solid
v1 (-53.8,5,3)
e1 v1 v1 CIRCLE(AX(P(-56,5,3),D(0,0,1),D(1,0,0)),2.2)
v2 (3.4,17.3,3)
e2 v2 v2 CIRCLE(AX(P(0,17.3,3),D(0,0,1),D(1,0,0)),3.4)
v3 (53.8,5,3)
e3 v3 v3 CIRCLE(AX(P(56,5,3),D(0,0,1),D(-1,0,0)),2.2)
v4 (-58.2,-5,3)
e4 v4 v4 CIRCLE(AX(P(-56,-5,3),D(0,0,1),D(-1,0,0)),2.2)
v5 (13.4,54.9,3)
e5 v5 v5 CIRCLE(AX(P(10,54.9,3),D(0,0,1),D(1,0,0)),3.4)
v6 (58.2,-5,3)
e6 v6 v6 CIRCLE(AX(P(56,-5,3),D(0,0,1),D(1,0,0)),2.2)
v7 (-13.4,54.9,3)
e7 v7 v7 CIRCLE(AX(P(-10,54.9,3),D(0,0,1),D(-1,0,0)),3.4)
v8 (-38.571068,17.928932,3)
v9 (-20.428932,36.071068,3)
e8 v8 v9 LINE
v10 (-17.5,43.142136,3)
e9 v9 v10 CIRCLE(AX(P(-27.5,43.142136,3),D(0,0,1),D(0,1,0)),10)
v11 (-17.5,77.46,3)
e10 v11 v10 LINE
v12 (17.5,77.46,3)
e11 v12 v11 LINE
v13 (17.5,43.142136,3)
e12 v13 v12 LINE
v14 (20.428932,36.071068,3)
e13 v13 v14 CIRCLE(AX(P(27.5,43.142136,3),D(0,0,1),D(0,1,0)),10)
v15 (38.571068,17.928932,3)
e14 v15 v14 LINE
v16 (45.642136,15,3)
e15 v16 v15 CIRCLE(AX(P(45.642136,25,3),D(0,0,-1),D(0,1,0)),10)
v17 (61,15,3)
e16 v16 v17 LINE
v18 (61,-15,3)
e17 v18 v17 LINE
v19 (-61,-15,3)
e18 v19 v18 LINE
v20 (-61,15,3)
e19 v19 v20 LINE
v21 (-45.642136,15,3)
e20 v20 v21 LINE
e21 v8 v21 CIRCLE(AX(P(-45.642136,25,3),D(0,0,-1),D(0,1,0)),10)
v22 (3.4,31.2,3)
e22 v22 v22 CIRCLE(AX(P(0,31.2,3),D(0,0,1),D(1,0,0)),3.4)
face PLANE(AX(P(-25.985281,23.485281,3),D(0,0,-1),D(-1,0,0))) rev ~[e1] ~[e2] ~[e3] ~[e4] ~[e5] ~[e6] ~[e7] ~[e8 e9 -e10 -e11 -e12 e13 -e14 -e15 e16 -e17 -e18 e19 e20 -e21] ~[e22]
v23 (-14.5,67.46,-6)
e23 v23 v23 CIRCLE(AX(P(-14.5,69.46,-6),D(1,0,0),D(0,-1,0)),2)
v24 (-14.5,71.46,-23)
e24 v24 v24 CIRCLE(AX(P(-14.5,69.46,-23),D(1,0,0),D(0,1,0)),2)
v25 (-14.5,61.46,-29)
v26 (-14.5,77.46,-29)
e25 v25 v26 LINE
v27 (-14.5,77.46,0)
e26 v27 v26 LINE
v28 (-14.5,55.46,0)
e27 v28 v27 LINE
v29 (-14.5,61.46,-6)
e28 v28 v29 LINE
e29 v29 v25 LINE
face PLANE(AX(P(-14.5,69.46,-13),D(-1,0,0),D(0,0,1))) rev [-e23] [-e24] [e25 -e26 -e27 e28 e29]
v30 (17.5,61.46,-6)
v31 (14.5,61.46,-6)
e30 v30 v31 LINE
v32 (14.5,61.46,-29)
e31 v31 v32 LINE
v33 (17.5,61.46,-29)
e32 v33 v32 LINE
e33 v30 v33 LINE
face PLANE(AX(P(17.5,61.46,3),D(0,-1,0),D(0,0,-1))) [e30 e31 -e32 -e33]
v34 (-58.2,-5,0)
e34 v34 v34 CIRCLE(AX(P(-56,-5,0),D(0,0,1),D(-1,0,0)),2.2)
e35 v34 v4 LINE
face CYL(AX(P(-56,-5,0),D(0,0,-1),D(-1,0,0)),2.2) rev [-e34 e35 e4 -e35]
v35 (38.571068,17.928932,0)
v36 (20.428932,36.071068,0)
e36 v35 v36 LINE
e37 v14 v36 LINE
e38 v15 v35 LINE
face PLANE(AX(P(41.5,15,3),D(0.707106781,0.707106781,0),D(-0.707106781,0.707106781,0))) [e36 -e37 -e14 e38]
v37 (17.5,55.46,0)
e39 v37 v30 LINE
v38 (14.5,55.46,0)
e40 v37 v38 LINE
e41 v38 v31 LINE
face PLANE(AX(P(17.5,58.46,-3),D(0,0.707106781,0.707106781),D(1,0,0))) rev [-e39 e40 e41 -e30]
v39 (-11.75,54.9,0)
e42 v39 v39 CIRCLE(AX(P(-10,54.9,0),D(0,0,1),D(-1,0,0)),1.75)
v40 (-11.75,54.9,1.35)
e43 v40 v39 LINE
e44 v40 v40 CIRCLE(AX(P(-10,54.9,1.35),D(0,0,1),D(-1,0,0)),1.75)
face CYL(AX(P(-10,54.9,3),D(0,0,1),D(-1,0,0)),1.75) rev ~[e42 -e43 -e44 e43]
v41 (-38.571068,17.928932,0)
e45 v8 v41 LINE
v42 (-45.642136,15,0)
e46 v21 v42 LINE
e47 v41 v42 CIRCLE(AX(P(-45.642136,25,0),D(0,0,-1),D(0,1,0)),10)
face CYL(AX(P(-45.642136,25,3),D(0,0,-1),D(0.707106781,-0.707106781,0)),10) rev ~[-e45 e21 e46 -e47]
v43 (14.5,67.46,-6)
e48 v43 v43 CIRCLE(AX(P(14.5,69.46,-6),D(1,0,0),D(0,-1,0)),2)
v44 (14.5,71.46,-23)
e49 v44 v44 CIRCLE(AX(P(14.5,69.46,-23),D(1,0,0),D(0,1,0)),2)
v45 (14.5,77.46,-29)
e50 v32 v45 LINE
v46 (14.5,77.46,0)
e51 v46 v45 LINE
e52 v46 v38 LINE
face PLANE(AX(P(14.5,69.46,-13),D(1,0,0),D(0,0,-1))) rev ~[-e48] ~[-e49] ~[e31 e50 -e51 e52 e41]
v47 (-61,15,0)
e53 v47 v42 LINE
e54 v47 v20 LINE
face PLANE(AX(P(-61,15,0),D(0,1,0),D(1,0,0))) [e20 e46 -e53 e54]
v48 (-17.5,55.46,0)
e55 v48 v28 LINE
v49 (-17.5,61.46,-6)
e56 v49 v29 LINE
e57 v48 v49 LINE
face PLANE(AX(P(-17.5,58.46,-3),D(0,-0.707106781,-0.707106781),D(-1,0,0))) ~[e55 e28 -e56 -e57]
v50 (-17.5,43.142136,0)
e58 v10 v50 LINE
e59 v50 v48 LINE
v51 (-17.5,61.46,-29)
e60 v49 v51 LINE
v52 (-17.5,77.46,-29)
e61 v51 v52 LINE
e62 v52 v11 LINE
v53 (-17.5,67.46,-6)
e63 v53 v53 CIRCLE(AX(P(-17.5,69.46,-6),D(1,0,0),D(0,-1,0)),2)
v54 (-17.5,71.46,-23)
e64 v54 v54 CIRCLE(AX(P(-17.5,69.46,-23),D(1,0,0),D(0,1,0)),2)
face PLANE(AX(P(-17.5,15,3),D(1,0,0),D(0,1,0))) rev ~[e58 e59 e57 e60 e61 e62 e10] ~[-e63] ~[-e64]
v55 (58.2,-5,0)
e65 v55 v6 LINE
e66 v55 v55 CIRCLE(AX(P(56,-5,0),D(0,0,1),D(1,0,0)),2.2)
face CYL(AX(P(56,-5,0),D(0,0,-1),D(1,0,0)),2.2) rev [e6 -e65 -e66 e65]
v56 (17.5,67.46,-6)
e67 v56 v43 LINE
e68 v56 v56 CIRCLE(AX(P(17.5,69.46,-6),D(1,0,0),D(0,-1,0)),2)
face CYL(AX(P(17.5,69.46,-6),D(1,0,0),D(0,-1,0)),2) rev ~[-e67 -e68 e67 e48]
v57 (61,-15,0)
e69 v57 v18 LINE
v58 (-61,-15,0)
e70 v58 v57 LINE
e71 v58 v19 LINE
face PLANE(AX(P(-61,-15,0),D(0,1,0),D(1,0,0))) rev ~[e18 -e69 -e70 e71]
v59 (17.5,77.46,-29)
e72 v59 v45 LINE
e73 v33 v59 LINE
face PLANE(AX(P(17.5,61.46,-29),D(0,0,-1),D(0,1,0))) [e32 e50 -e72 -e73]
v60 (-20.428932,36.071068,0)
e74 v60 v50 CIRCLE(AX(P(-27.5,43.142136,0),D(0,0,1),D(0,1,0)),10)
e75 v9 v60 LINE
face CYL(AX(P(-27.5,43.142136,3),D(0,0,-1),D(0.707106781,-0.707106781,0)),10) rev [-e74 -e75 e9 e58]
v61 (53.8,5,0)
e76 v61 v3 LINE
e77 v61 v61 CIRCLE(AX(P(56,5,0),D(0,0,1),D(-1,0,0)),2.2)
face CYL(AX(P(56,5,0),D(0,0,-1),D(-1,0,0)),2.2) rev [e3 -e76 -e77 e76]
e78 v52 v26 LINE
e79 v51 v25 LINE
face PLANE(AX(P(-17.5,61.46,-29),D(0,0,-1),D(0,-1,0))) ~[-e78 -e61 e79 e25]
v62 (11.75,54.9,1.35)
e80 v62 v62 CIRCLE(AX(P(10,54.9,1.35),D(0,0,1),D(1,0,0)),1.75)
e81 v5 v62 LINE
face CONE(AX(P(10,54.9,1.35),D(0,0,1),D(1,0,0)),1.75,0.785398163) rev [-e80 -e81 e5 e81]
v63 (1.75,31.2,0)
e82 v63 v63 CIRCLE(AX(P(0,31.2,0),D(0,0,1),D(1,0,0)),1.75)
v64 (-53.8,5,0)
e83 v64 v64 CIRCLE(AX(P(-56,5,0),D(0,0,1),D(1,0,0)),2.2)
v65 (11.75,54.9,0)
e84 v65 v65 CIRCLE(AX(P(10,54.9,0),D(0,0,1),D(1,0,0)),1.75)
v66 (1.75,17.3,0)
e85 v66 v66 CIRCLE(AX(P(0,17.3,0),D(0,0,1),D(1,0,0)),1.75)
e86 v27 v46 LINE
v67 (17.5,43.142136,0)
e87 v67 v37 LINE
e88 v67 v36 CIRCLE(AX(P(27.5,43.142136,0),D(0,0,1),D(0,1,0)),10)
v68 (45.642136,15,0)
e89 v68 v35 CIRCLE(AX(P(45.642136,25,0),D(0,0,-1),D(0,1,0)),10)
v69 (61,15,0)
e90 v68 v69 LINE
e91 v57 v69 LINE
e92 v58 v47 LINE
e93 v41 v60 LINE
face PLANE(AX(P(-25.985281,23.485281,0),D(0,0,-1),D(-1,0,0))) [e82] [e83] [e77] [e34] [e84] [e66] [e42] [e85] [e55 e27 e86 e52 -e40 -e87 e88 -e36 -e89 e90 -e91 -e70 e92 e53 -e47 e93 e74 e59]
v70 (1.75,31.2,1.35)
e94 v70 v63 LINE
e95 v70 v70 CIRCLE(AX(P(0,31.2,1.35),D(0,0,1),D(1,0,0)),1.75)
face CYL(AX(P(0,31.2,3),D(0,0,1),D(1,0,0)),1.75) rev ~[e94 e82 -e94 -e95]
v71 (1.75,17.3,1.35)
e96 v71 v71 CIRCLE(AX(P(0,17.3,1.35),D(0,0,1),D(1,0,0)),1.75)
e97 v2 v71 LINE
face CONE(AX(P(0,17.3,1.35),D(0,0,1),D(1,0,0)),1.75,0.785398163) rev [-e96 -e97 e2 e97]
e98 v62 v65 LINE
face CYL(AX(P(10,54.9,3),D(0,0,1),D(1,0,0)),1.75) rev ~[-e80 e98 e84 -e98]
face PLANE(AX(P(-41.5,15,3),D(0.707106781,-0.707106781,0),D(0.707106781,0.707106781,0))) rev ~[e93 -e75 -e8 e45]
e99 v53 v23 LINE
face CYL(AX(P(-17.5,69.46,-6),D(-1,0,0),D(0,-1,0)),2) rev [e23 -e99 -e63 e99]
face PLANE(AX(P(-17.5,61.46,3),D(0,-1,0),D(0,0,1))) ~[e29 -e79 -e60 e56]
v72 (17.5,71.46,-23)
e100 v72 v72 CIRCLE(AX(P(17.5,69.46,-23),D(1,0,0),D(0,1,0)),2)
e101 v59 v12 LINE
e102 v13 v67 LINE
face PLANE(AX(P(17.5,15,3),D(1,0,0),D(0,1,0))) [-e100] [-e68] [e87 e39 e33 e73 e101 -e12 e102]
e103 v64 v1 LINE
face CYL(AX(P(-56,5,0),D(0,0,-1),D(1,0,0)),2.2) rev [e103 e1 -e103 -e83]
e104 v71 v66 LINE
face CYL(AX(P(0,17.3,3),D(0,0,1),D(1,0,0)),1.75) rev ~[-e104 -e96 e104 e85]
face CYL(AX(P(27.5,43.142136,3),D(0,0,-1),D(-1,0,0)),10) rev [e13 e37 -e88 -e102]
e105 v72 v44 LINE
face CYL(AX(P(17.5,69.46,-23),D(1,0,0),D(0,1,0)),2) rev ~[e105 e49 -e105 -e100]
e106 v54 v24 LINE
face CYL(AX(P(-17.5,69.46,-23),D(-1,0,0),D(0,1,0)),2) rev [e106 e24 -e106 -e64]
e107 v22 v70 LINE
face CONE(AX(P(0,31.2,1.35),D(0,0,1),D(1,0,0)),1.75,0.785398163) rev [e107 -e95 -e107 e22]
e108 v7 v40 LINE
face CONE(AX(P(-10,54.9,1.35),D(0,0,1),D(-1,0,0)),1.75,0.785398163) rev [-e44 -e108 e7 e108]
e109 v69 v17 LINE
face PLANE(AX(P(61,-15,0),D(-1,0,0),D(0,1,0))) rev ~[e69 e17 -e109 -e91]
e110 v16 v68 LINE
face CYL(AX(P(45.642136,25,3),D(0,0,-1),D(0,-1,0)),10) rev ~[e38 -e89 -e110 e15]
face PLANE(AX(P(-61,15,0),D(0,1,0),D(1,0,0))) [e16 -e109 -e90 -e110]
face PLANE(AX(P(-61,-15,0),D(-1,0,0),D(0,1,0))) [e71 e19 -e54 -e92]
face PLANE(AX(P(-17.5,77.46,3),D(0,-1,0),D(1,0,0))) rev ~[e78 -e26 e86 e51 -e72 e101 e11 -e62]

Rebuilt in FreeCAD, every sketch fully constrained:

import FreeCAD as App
import Part
import Sketcher

V = App.Vector


def edges_at(feature, points):
    """Names of the edges that pass closest to the given points."""
    edges = feature.Shape.Edges
    near = lambda p: min(range(len(edges)), key=lambda i: edges[i].distToShape(Part.Vertex(*p))[0])
    return sorted({f"Edge{near(p) + 1}" for p in points})

doc = App.newDocument("Part")
params = doc.addObject("Spreadsheet::Sheet", "Params")
for row, (alias, value) in enumerate([
    ("sketch1_diameter", "4.4 mm"),
    ("sketch1_width", "122 mm"),
    ("sketch1_height", "30 mm"),
    ("pad1_length", "3 mm"),
    ("sketch2_diameter", "3.5 mm"),
    ("sketch2_width", "35 mm"),
    ("sketch2_height", "62.46 mm"),
    ("pad2_length", "3 mm"),
    ("sketch3_width", "24 mm"),
    ("pad3_length", "3 mm"),
    ("fillet_radius", "10 mm"),
    ("chamfer_size", "1.65 mm"),
    ("sketch4_diameter", "4 mm"),
    ("sketch4_width", "16 mm"),
    ("sketch4_height", "32 mm"),
    ("pad4_length", "3 mm"),
    ("chamfer2_size", "6 mm"),
], start=1):
    params.set(f"A{row}", alias)
    params.set(f"B{row}", "=" + value)
    params.setAlias(f"B{row}", alias)

body = doc.addObject("PartDesign::Body", "Body")

sketch1 = body.newObject("Sketcher::SketchObject", "Sketch")
sketch1.AttachmentSupport = (doc.getObject("XY_Plane"), [""])
sketch1.MapMode = "FlatFace"
sketch1.addGeometry([
    Part.LineSegment(V(-61, 15, 0), V(-61, -15, 0)),
    Part.LineSegment(V(-61, -15, 0), V(61, -15, 0)),
    Part.LineSegment(V(61, -15, 0), V(61, 15, 0)),
    Part.LineSegment(V(61, 15, 0), V(-61, 15, 0)),
    Part.Circle(V(-56, -5, 0), V(0, 0, 1), 2.2),
    Part.Circle(V(56, -5, 0), V(0, 0, 1), 2.2),
    Part.Circle(V(-56, 5, 0), V(0, 0, 1), 2.2),
    Part.Circle(V(56, 5, 0), V(0, 0, 1), 2.2),
], False)
sketch1.addConstraint([
    Sketcher.Constraint("Coincident", 0, 2, 1, 1),
    Sketcher.Constraint("Coincident", 1, 2, 2, 1),
    Sketcher.Constraint("Coincident", 2, 2, 3, 1),
    Sketcher.Constraint("Coincident", 3, 2, 0, 1),
    Sketcher.Constraint("Vertical", 0),
    Sketcher.Constraint("Horizontal", 1),
    Sketcher.Constraint("Vertical", 2),
    Sketcher.Constraint("Horizontal", 3),
    Sketcher.Constraint("Equal", 4, 5),
    Sketcher.Constraint("Equal", 5, 6),
    Sketcher.Constraint("Equal", 6, 7),
    Sketcher.Constraint("Symmetric", 5, 3, 6, 3, -1, 1),
    Sketcher.Constraint("Symmetric", 4, 3, 7, 3, -1, 1),
    Sketcher.Constraint("Symmetric", 0, 2, 2, 2, -1, 1),
    Sketcher.Constraint("Symmetric", 4, 3, 5, 3, -2),
    Sketcher.Constraint("Diameter", 4, 4.4),
    Sketcher.Constraint("DistanceX", 1, 1, 1, 2, 122.0),
    Sketcher.Constraint("DistanceY", 0, 2, 0, 1, 30.0),
    Sketcher.Constraint("DistanceX", 4, 3, -1, 1, 56.0),
    Sketcher.Constraint("DistanceY", 4, 3, -1, 1, 5.0),
])
sketch1.setExpression("Constraints[15]", "Params.sketch1_diameter")
sketch1.setExpression("Constraints[16]", "Params.sketch1_width")
sketch1.setExpression("Constraints[17]", "Params.sketch1_height")
pad1 = body.newObject("PartDesign::Pad", "Pad")
pad1.Profile = sketch1
pad1.setExpression("Length", "Params.pad1_length")

sketch2 = body.newObject("Sketcher::SketchObject", "Sketch001")
sketch2.AttachmentSupport = (doc.getObject("XY_Plane"), [""])
sketch2.MapMode = "FlatFace"
sketch2.AttachmentOffset = App.Placement(V(0, 0, 3), App.Rotation())
sketch2.addGeometry([
    Part.LineSegment(V(-17.5, 77.5, 0), V(-17.5, 15, 0)),
    Part.LineSegment(V(-17.5, 15, 0), V(17.5, 15, 0)),
    Part.LineSegment(V(17.5, 15, 0), V(17.5, 77.5, 0)),
    Part.LineSegment(V(17.5, 77.5, 0), V(-17.5, 77.5, 0)),
    Part.Circle(V(0, 17.3, 0), V(0, 0, 1), 1.8),
    Part.Circle(V(0, 31.2, 0), V(0, 0, 1), 1.8),
    Part.Circle(V(-10, 54.9, 0), V(0, 0, 1), 1.8),
    Part.Circle(V(10, 54.9, 0), V(0, 0, 1), 1.8),
], False)
sketch2.addConstraint([
    Sketcher.Constraint("Coincident", 0, 2, 1, 1),
    Sketcher.Constraint("Coincident", 1, 2, 2, 1),
    Sketcher.Constraint("Coincident", 2, 2, 3, 1),
    Sketcher.Constraint("Coincident", 3, 2, 0, 1),
    Sketcher.Constraint("Vertical", 0),
    Sketcher.Constraint("Horizontal", 1),
    Sketcher.Constraint("Vertical", 2),
    Sketcher.Constraint("Horizontal", 3),
    Sketcher.Constraint("Equal", 4, 5),
    Sketcher.Constraint("Equal", 5, 6),
    Sketcher.Constraint("Equal", 6, 7),
    Sketcher.Constraint("Symmetric", 6, 3, 7, 3, -2),
    Sketcher.Constraint("PointOnObject", 4, 3, -2),
    Sketcher.Constraint("PointOnObject", 5, 3, -2),
    Sketcher.Constraint("Diameter", 4, 3.5),
    Sketcher.Constraint("DistanceX", 1, 1, 1, 2, 35.0),
    Sketcher.Constraint("DistanceX", 6, 3, -1, 1, 10.0),
    Sketcher.Constraint("DistanceY", -1, 1, 0, 2, 15.0),
    Sketcher.Constraint("DistanceY", 0, 2, 0, 1, 62.46),
    Sketcher.Constraint("DistanceY", -1, 1, 4, 3, 17.3),
    Sketcher.Constraint("DistanceY", -1, 1, 5, 3, 31.2),
    Sketcher.Constraint("DistanceY", -1, 1, 6, 3, 54.9),
    Sketcher.Constraint("DistanceX", 0, 2, -1, 1, 17.5),
])
sketch2.setExpression("Constraints[14]", "Params.sketch2_diameter")
sketch2.setExpression("Constraints[15]", "Params.sketch2_width")
sketch2.setExpression("Constraints[18]", "Params.sketch2_height")
pad2 = body.newObject("PartDesign::Pad", "Pad001")
pad2.Profile = sketch2
pad2.setExpression("Length", "Params.pad2_length")
pad2.Reversed = True

sketch3 = body.newObject("Sketcher::SketchObject", "Sketch002")
sketch3.AttachmentSupport = (doc.getObject("XY_Plane"), [""])
sketch3.MapMode = "FlatFace"
sketch3.AttachmentOffset = App.Placement(V(0, 0, 3), App.Rotation())
sketch3.addGeometry([
    Part.LineSegment(V(-18, 39, 0), V(-42, 15, 0)),
    Part.LineSegment(V(-42, 15, 0), V(-18, 15, 0)),
    Part.LineSegment(V(-18, 15, 0), V(-18, 39, 0)),
    Part.LineSegment(V(18, 39, 0), V(18, 15, 0)),
    Part.LineSegment(V(18, 15, 0), V(42, 15, 0)),
    Part.LineSegment(V(42, 15, 0), V(18, 39, 0)),
], False)
sketch3.addConstraint([
    Sketcher.Constraint("Coincident", 0, 2, 1, 1),
    Sketcher.Constraint("Coincident", 1, 2, 2, 1),
    Sketcher.Constraint("Coincident", 2, 2, 0, 1),
    Sketcher.Constraint("Coincident", 3, 2, 4, 1),
    Sketcher.Constraint("Coincident", 4, 2, 5, 1),
    Sketcher.Constraint("Coincident", 5, 2, 3, 1),
    Sketcher.Constraint("Horizontal", 1),
    Sketcher.Constraint("Vertical", 2),
    Sketcher.Constraint("Vertical", 3),
    Sketcher.Constraint("Horizontal", 4),
    Sketcher.Constraint("Symmetric", 1, 2, 3, 2, -2),
    Sketcher.Constraint("Perpendicular", 0, 5),
    Sketcher.Constraint("Horizontal", 2, 2, 5, 2),
    Sketcher.Constraint("Equal", 1, 4),
    Sketcher.Constraint("DistanceX", 1, 1, 1, 2, 24.0),
    Sketcher.Constraint("DistanceY", -1, 1, 0, 2, 15.0),
    Sketcher.Constraint("DistanceX", 1, 2, 3, 2, 35.0),
])
sketch3.setExpression("Constraints[14]", "Params.sketch3_width")
pad3 = body.newObject("PartDesign::Pad", "Pad002")
pad3.Profile = sketch3
pad3.setExpression("Length", "Params.pad3_length")
pad3.Reversed = True
doc.recompute()

fillet = body.newObject("PartDesign::Fillet", "Fillet")
fillet.Base = (pad3, edges_at(pad3, [
    (-41.5, 15, 1.5),
    (-17.5, 39, 1.5),
    (17.5, 39, 1.5),
    (41.5, 15, 1.5),
]))
fillet.setExpression("Radius", "Params.fillet_radius")
doc.recompute()

chamfer = body.newObject("PartDesign::Chamfer", "Chamfer")
chamfer.Base = (fillet, edges_at(fillet, [
    (-1.75, 17.3, 3),
    (8.25, 54.9, 3),
    (-1.75, 31.2, 3),
    (-8.25, 54.9, 3),
]))
chamfer.setExpression("Size", "Params.chamfer_size")

sketch4 = body.newObject("Sketcher::SketchObject", "Sketch003")
sketch4.AttachmentSupport = (doc.getObject("YZ_Plane"), [""])
sketch4.MapMode = "FlatFace"
sketch4.AttachmentOffset = App.Placement(V(0, 0, 17.5), App.Rotation())
sketch4.addGeometry([
    Part.LineSegment(V(77.5, 3, 0), V(61.5, 3, 0)),
    Part.LineSegment(V(61.5, 3, 0), V(61.5, -29, 0)),
    Part.LineSegment(V(61.5, -29, 0), V(77.5, -29, 0)),
    Part.LineSegment(V(77.5, -29, 0), V(77.5, 3, 0)),
    Part.Circle(V(69.5, -6, 0), V(0, 0, 1), 2),
    Part.Circle(V(69.5, -23, 0), V(0, 0, 1), 2),
], False)
sketch4.addConstraint([
    Sketcher.Constraint("Coincident", 0, 2, 1, 1),
    Sketcher.Constraint("Coincident", 1, 2, 2, 1),
    Sketcher.Constraint("Coincident", 2, 2, 3, 1),
    Sketcher.Constraint("Coincident", 3, 2, 0, 1),
    Sketcher.Constraint("Horizontal", 0),
    Sketcher.Constraint("Vertical", 1),
    Sketcher.Constraint("Horizontal", 2),
    Sketcher.Constraint("Vertical", 3),
    Sketcher.Constraint("Equal", 4, 5),
    Sketcher.Constraint("Vertical", 4, 3, 5, 3),
    Sketcher.Constraint("Diameter", 4, 4.0),
    Sketcher.Constraint("DistanceX", 0, 2, 0, 1, 16.0),
    Sketcher.Constraint("DistanceY", 1, 2, 1, 1, 32.0),
    Sketcher.Constraint("DistanceY", 4, 3, -1, 1, 6.0),
    Sketcher.Constraint("DistanceY", 5, 3, -1, 1, 23.0),
    Sketcher.Constraint("DistanceY", -1, 1, 0, 2, 3.0),
    Sketcher.Constraint("DistanceX", 0, 2, 4, 3, 8.0),
    Sketcher.Constraint("DistanceX", -1, 1, 4, 3, 69.46),
])
sketch4.setExpression("Constraints[10]", "Params.sketch4_diameter")
sketch4.setExpression("Constraints[11]", "Params.sketch4_width")
sketch4.setExpression("Constraints[12]", "Params.sketch4_height")
pad4 = body.newObject("PartDesign::Pad", "Pad003")
pad4.Profile = sketch4
pad4.setExpression("Length", "Params.pad4_length")
pad4.Reversed = True
doc.recompute()

mirrored = body.newObject("PartDesign::Mirrored", "Mirrored")
mirrored.Originals = [pad4]
mirrored.MirrorPlane = (doc.getObject("YZ_Plane"), [""])
body.Tip = mirrored
doc.recompute()

chamfer2 = body.newObject("PartDesign::Chamfer", "Chamfer001")
chamfer2.Base = (mirrored, edges_at(mirrored, [(16, 61.46, 0), (-16, 61.46, 0)]))
chamfer2.setExpression("Size", "Params.chamfer2_size")

doc.recompute()
